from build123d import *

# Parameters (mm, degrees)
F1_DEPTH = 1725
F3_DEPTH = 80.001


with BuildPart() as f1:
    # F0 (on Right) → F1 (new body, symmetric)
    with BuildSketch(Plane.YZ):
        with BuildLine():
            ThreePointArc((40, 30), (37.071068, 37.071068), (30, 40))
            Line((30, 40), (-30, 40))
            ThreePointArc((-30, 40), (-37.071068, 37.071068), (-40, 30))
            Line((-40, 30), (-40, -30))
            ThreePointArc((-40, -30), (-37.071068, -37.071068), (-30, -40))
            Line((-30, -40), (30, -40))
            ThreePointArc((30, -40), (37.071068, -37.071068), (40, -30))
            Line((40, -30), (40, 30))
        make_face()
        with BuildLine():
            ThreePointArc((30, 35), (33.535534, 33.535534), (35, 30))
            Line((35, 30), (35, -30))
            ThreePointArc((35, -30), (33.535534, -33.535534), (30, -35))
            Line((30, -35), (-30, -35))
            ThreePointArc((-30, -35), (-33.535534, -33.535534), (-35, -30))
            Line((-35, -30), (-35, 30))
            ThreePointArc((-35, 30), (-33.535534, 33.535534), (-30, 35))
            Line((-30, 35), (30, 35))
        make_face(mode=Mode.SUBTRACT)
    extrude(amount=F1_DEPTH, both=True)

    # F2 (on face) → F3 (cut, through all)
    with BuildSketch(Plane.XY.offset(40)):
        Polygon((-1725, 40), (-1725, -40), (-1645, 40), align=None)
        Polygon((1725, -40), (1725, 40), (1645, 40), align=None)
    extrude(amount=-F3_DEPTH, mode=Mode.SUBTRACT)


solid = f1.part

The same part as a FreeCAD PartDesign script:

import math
import FreeCAD as App
import Part
import Sketcher
from FreeCAD import Vector

doc = App.newDocument("Part")
body = doc.addObject("PartDesign::Body", "Body")

# Sketch on YZ plane
sketch1 = body.newObject("Sketcher::SketchObject", "Sketch")
sketch1.AttachmentSupport = (doc.getObject("YZ_Plane"), [""])
sketch1.MapMode = "FlatFace"
sketch1.addGeometry(Part.ArcOfCircle(Part.Circle(Vector(30.000001, 30.000001, 0), Vector(0, 0, 1), 9.999999), math.radians(-0.000004), math.radians(90.000004)), False)
sketch1.addGeometry(Part.LineSegment(Vector(30, 40, 0), Vector(-30, 40, 0)), False)
sketch1.addGeometry(Part.ArcOfCircle(Part.Circle(Vector(-30.000001, 30.000001, 0), Vector(0, 0, 1), 9.999999), math.radians(89.999996), math.radians(180.000004)), False)
sketch1.addGeometry(Part.LineSegment(Vector(-40, 30, 0), Vector(-40, -30, 0)), False)
sketch1.addGeometry(Part.ArcOfCircle(Part.Circle(Vector(-30.000001, -30.000001, 0), Vector(0, 0, 1), 9.999999), math.radians(179.999996), math.radians(270.000004)), False)
sketch1.addGeometry(Part.LineSegment(Vector(-30, -40, 0), Vector(30, -40, 0)), False)
sketch1.addGeometry(Part.ArcOfCircle(Part.Circle(Vector(30.000001, -30.000001, 0), Vector(0, 0, 1), 9.999999), math.radians(-90.000004), math.radians(0.000004)), False)
sketch1.addGeometry(Part.LineSegment(Vector(40, -30, 0), Vector(40, 30, 0)), False)
sketch1.addGeometry(Part.LineSegment(Vector(-30, 35, 0), Vector(30, 35, 0)), False)
sketch1.addGeometry(Part.ArcOfCircle(Part.Circle(Vector(30, 30, 0), Vector(0, 0, 1), 5), math.radians(-0.000004), math.radians(90.000004)), False)
sketch1.addGeometry(Part.LineSegment(Vector(35, 30, 0), Vector(35, -30, 0)), False)
sketch1.addGeometry(Part.ArcOfCircle(Part.Circle(Vector(30, -30, 0), Vector(0, 0, 1), 5), math.radians(-90.000004), math.radians(0.000004)), False)
sketch1.addGeometry(Part.LineSegment(Vector(30, -35, 0), Vector(-30, -35, 0)), False)
sketch1.addGeometry(Part.ArcOfCircle(Part.Circle(Vector(-30, -30, 0), Vector(0, 0, 1), 5), math.radians(179.999996), math.radians(270.000004)), False)
sketch1.addGeometry(Part.LineSegment(Vector(-35, -30, 0), Vector(-35, 30, 0)), False)
sketch1.addGeometry(Part.ArcOfCircle(Part.Circle(Vector(-30, 30, 0), Vector(0, 0, 1), 5), math.radians(89.999996), math.radians(180.000004)), False)
sketch1.addConstraint(Sketcher.Constraint("Tangent", 0, 2, 1, 1))
sketch1.addConstraint(Sketcher.Constraint("Tangent", 1, 2, 2, 1))
sketch1.addConstraint(Sketcher.Constraint("Tangent", 2, 2, 3, 1))
sketch1.addConstraint(Sketcher.Constraint("Tangent", 3, 2, 4, 1))
sketch1.addConstraint(Sketcher.Constraint("Tangent", 4, 2, 5, 1))
sketch1.addConstraint(Sketcher.Constraint("Tangent", 5, 2, 6, 1))
sketch1.addConstraint(Sketcher.Constraint("Tangent", 6, 2, 7, 1))
sketch1.addConstraint(Sketcher.Constraint("Tangent", 7, 2, 0, 1))
sketch1.addConstraint(Sketcher.Constraint("Tangent", 8, 2, 9, 2))
sketch1.addConstraint(Sketcher.Constraint("Tangent", 9, 1, 10, 1))
sketch1.addConstraint(Sketcher.Constraint("Tangent", 10, 2, 11, 2))
sketch1.addConstraint(Sketcher.Constraint("Tangent", 11, 1, 12, 1))
sketch1.addConstraint(Sketcher.Constraint("Tangent", 12, 2, 13, 2))
sketch1.addConstraint(Sketcher.Constraint("Tangent", 13, 1, 14, 1))
sketch1.addConstraint(Sketcher.Constraint("Tangent", 14, 2, 15, 2))
sketch1.addConstraint(Sketcher.Constraint("Tangent", 15, 1, 8, 1))
sketch1.addConstraint(Sketcher.Constraint("Horizontal", 1))
sketch1.addConstraint(Sketcher.Constraint("Vertical", 3))
sketch1.addConstraint(Sketcher.Constraint("Horizontal", 5))
sketch1.addConstraint(Sketcher.Constraint("Vertical", 7))
sketch1.addConstraint(Sketcher.Constraint("Horizontal", 8))
sketch1.addConstraint(Sketcher.Constraint("Vertical", 10))
sketch1.addConstraint(Sketcher.Constraint("Horizontal", 12))
sketch1.addConstraint(Sketcher.Constraint("Vertical", 14))
sketch1.addConstraint(Sketcher.Constraint("Coincident", 9, 3, 0, 3))
sketch1.addConstraint(Sketcher.Constraint("Coincident", 11, 3, 6, 3))
sketch1.addConstraint(Sketcher.Constraint("Coincident", 13, 3, 4, 3))
sketch1.addConstraint(Sketcher.Constraint("Equal", 0, 2))
sketch1.addConstraint(Sketcher.Constraint("Equal", 2, 4))
sketch1.addConstraint(Sketcher.Constraint("Equal", 4, 6))
sketch1.addConstraint(Sketcher.Constraint("Equal", 13, 15))
sketch1.addConstraint(Sketcher.Constraint("Symmetric", 0, 3, 4, 3, -1, 1))
sketch1.addConstraint(Sketcher.Constraint("Equal", 12, 3))
sketch1.addConstraint(Sketcher.Constraint("Radius", 0, 9.999999))
sketch1.addConstraint(Sketcher.Constraint("Radius", 9, 5.0))
sketch1.addConstraint(Sketcher.Constraint("DistanceX", 1, 2, 1, 1, 60.0))
pad1 = body.newObject("PartDesign::Pad", "Pad")
pad1.Profile = sketch1
pad1.Length = 3450
pad1.Midplane = True

# Sketch on XY plane
sketch2 = body.newObject("Sketcher::SketchObject", "Sketch001")
sketch2.AttachmentSupport = (doc.getObject("XY_Plane"), [""])
sketch2.MapMode = "FlatFace"
sketch2.AttachmentOffset = App.Placement(Vector(0, 0, 40), App.Rotation())
sketch2.addGeometry(Part.LineSegment(Vector(-1725, 40, 0), Vector(-1725, -40, 0)), False)
sketch2.addGeometry(Part.LineSegment(Vector(-1725, -40, 0), Vector(-1645, 40, 0)), False)
sketch2.addGeometry(Part.LineSegment(Vector(-1645, 40, 0), Vector(-1725, 40, 0)), False)
sketch2.addGeometry(Part.LineSegment(Vector(1725, -40, 0), Vector(1725, 40, 0)), False)
sketch2.addGeometry(Part.LineSegment(Vector(1725, 40, 0), Vector(1645, 40, 0)), False)
sketch2.addGeometry(Part.LineSegment(Vector(1645, 40, 0), Vector(1725, -40, 0)), False)
sketch2.addConstraint(Sketcher.Constraint("Coincident", 0, 2, 1, 1))
sketch2.addConstraint(Sketcher.Constraint("Coincident", 1, 2, 2, 1))
sketch2.addConstraint(Sketcher.Constraint("Coincident", 2, 2, 0, 1))
sketch2.addConstraint(Sketcher.Constraint("Coincident", 3, 2, 4, 1))
sketch2.addConstraint(Sketcher.Constraint("Coincident", 4, 2, 5, 1))
sketch2.addConstraint(Sketcher.Constraint("Coincident", 5, 2, 3, 1))
sketch2.addConstraint(Sketcher.Constraint("Vertical", 0))
sketch2.addConstraint(Sketcher.Constraint("Horizontal", 2))
sketch2.addConstraint(Sketcher.Constraint("Vertical", 3))
sketch2.addConstraint(Sketcher.Constraint("Horizontal", 4))
sketch2.addConstraint(Sketcher.Constraint("Symmetric", 0, 2, 3, 2, -1, 1))
sketch2.addConstraint(Sketcher.Constraint("Symmetric", 1, 2, 4, 2, -2))
sketch2.addConstraint(Sketcher.Constraint("Perpendicular", 1, 5))
sketch2.addConstraint(Sketcher.Constraint("Horizontal", 0, 2, 5, 2))
sketch2.addConstraint(Sketcher.Constraint("DistanceX", 2, 2, 2, 1, 80.0))
sketch2.addConstraint(Sketcher.Constraint("DistanceX", 0, 2, -1, 1, 1725.0))
pocket1 = body.newObject("PartDesign::Pocket", "Pocket")
pocket1.Profile = sketch2
pocket1.Type = "ThroughAll"

doc.recompute()
